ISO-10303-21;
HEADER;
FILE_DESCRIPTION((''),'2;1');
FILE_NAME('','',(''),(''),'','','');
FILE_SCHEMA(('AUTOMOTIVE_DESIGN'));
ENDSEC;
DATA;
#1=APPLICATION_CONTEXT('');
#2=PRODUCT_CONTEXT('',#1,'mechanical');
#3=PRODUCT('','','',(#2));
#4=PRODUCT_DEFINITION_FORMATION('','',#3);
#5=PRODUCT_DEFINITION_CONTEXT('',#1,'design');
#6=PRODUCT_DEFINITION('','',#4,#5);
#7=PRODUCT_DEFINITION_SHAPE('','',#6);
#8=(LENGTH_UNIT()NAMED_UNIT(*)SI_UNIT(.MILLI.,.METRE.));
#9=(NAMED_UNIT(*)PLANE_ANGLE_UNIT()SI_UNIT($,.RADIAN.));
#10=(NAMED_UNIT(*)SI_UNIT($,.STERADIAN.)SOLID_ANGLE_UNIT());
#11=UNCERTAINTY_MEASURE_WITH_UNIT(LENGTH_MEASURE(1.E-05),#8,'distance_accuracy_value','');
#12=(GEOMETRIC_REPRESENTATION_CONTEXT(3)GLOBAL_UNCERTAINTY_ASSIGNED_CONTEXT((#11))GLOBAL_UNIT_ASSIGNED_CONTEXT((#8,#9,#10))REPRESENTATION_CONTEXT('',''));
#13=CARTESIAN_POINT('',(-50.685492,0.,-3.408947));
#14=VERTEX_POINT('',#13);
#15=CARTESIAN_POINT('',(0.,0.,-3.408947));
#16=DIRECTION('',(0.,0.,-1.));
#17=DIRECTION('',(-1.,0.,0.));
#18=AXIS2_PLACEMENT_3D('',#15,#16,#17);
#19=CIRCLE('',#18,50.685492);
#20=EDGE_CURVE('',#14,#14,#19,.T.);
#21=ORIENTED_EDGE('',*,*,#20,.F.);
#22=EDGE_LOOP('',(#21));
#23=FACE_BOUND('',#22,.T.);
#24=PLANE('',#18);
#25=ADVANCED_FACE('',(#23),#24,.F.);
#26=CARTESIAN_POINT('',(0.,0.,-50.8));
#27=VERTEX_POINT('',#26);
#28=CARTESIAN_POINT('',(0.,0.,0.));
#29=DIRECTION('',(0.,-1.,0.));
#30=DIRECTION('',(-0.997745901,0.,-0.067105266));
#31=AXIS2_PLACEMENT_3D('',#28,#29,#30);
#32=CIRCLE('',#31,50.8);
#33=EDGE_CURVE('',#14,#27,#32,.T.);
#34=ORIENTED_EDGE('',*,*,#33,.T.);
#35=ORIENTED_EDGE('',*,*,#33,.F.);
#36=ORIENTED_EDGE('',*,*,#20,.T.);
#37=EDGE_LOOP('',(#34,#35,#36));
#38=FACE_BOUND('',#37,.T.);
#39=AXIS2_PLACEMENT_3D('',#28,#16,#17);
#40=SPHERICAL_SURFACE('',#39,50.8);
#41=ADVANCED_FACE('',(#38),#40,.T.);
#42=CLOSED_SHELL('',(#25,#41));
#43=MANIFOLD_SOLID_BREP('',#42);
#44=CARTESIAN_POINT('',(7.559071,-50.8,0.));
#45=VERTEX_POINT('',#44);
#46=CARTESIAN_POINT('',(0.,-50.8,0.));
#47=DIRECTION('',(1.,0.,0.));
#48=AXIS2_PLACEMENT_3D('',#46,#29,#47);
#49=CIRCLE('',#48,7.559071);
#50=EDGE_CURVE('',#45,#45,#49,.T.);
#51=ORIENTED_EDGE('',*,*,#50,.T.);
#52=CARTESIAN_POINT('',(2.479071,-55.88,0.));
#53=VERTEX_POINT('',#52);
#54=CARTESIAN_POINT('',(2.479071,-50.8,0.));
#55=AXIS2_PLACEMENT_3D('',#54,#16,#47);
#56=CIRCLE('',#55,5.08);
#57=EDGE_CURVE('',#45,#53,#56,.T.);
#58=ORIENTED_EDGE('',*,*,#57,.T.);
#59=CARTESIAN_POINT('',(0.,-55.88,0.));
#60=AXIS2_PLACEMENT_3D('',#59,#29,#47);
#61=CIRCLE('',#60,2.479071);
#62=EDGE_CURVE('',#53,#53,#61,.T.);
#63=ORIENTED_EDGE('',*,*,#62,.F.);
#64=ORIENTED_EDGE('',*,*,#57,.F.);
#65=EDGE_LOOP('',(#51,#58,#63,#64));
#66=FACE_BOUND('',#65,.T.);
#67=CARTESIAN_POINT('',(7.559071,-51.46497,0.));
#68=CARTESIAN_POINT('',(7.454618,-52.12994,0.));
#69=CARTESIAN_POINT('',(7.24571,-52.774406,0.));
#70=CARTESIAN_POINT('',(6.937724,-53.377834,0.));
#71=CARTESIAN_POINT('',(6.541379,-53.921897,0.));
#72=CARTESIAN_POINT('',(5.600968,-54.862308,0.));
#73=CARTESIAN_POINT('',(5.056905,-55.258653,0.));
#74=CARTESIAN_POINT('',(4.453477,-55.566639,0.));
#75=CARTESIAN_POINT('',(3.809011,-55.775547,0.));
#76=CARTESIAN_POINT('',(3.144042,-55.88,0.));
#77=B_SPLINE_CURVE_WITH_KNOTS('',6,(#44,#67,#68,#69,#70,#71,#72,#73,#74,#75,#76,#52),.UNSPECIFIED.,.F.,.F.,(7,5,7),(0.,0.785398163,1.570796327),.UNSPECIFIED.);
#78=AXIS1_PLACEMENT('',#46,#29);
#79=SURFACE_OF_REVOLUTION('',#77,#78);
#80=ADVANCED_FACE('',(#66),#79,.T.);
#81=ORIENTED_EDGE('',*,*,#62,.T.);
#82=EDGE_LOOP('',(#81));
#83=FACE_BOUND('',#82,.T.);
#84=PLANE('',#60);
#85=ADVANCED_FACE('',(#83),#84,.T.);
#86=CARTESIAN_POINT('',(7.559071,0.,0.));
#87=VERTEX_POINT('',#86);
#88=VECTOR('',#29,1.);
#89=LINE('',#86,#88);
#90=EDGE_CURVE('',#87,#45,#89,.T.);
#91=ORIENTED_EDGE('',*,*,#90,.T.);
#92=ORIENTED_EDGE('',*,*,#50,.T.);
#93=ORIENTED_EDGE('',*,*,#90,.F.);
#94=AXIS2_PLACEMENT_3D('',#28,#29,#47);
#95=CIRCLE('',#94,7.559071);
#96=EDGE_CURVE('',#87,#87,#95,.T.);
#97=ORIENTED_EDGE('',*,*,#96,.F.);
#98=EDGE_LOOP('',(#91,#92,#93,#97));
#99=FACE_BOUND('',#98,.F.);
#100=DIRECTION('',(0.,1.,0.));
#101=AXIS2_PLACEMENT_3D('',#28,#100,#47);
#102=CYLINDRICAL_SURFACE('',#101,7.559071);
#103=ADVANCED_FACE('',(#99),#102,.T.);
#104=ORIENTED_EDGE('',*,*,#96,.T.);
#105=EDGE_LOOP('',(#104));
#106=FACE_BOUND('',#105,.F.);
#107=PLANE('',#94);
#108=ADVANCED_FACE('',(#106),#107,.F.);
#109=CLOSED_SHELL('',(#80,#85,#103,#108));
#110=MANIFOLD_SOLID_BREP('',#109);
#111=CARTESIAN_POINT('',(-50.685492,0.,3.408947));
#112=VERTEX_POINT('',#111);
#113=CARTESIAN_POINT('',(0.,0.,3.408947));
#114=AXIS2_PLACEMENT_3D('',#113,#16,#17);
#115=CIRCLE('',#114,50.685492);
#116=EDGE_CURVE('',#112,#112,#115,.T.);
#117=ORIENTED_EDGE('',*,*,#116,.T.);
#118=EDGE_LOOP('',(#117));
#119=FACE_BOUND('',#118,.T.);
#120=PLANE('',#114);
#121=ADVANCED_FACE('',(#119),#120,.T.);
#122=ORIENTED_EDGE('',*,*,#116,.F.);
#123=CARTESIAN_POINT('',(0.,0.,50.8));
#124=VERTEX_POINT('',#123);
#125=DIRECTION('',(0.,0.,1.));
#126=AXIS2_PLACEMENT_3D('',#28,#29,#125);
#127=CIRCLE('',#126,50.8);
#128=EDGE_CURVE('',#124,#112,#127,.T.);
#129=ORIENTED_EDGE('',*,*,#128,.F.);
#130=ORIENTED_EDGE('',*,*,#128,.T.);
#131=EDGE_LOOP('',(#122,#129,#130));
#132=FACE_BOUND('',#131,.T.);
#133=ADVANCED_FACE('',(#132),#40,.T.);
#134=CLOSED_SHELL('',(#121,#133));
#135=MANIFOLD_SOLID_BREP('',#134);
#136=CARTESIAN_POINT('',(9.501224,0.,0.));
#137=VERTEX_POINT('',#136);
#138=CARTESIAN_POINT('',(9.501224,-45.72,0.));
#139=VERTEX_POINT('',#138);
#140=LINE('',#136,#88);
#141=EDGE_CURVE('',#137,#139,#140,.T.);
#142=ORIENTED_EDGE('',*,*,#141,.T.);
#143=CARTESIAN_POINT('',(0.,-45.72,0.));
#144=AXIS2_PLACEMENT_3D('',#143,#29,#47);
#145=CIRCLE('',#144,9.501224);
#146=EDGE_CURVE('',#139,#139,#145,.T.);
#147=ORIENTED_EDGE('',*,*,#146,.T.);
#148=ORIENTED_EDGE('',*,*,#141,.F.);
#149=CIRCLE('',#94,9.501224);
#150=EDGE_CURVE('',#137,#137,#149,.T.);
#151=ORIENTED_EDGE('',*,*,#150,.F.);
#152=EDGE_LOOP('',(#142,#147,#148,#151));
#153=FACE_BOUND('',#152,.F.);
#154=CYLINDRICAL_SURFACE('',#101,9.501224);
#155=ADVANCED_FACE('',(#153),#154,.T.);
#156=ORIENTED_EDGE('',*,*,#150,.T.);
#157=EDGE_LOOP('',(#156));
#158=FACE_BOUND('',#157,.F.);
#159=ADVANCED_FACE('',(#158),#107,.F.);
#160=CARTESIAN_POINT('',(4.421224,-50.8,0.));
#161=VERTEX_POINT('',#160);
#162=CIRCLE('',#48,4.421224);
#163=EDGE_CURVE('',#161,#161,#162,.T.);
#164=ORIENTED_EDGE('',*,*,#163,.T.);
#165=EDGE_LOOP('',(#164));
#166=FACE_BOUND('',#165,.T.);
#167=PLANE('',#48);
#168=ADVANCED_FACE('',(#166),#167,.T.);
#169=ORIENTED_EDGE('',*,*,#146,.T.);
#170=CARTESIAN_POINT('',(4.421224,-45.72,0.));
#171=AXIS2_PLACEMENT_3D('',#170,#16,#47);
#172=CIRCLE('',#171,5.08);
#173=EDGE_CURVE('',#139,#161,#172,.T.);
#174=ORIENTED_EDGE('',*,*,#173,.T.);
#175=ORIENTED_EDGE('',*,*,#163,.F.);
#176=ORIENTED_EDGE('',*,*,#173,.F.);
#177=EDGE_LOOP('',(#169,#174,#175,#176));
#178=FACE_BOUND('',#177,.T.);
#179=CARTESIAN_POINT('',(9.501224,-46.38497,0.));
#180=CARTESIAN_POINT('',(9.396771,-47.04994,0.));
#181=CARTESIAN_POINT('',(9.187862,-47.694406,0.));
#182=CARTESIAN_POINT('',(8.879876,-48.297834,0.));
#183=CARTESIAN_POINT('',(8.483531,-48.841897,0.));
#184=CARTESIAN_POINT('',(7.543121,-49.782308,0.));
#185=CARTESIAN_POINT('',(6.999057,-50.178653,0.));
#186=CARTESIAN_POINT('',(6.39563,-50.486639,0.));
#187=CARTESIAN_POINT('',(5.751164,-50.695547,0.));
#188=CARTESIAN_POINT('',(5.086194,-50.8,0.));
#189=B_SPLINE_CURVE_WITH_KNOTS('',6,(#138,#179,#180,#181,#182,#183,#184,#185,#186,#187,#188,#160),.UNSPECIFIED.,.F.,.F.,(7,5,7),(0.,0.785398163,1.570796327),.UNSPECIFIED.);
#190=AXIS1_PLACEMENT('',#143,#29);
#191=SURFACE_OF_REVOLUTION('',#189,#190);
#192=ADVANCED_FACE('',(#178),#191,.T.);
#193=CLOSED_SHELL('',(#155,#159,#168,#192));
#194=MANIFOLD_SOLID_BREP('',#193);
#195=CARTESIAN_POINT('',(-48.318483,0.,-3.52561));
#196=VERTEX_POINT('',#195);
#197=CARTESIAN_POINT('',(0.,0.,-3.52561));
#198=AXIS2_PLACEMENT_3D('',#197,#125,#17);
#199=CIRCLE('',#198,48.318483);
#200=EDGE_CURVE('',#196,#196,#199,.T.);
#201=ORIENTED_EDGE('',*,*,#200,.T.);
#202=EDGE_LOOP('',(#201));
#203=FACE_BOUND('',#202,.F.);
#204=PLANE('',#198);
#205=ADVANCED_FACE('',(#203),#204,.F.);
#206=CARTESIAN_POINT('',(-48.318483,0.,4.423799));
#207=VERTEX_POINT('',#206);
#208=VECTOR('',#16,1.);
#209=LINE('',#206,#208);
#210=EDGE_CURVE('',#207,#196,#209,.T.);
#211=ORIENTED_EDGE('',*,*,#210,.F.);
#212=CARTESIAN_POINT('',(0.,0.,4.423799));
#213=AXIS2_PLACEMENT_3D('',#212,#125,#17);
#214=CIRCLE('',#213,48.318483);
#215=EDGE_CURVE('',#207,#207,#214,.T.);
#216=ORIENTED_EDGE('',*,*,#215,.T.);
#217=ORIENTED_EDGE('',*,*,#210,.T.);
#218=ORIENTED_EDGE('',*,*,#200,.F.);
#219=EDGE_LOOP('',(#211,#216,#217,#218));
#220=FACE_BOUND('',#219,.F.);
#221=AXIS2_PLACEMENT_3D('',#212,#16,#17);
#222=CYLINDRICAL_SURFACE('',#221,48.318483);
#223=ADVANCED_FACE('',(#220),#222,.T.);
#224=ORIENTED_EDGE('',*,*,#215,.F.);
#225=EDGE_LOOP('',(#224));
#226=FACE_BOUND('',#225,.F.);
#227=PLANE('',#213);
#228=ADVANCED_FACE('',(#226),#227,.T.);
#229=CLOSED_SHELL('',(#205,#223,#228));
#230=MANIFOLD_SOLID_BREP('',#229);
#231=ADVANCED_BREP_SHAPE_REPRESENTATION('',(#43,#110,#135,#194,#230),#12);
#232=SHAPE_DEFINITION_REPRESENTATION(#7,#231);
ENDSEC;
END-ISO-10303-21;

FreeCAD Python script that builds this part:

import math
import FreeCAD as App
import Part
import Sketcher
Q = App.Units.Quantity


def edges_at(feature, points):
    """Names of the edges that pass closest to the given points."""
    edges = feature.Shape.Edges
    near = lambda p: min(range(len(edges)), key=lambda i: edges[i].distToShape(Part.Vertex(*p))[0])
    return sorted({f"Edge{near(p) + 1}" for p in points})

doc = App.newDocument("Part")
params = doc.addObject("Spreadsheet::Sheet", "Params")
for row, (alias, value) in enumerate([
    ("sketch1_radius", "2 in"),
    ("revolution_angle", "360 deg"),
    ("sketch2_radius", "2 in"),
    ("revolution2_angle", "360 deg"),
    ("revolution3_angle", "360 deg"),
    ("pad1_length", "2 in"),
    ("fillet_radius", "0.2 in"),
    ("pad2_length", "2.2 in"),
    ("fillet2_radius", "0.2 in"),
], start=1):
    params.set(f"A{row}", alias)
    params.set(f"B{row}", "=" + value)
    params.setAlias(f"B{row}", alias)

body = doc.addObject("PartDesign::Body", "Body")

# Sketch on XZ plane
sketch1 = doc.addObject("Sketcher::SketchObject", "Sketch")
body.addObject(sketch1)
sketch1.AttachmentSupport = (doc.XZ_Plane, [""])
sketch1.MapMode = "FlatFace"
sketch1.addGeometry([
    Part.LineSegment(App.Vector(0, 3, 0), App.Vector(0, 51, 0)),
    Part.ArcOfCircle(Part.Circle(App.Vector(0, 0, 0), App.Vector(0, 0, 1), 51), math.radians(90), math.radians(176)),
    Part.LineSegment(App.Vector(-51, 3, 0), App.Vector(0, 3, 0)),
], False)
sketch1.addConstraint([
    Sketcher.Constraint("Coincident", 0, 2, 1, 1),
    Sketcher.Constraint("Coincident", 1, 2, 2, 1),
    Sketcher.Constraint("Coincident", 2, 2, 0, 1),
    Sketcher.Constraint("Vertical", 0),
    Sketcher.Constraint("Horizontal", 2),
    Sketcher.Constraint("Coincident", 1, 3, -1, 1),
    Sketcher.Constraint("PointOnObject", 0, 2, -2),
    Sketcher.Constraint("Radius", 1, Q("2 in")),
    Sketcher.Constraint("DistanceX", 2, 1, 2, 2, Q("50.685492 mm")),
])
sketch1.setExpression("Constraints[7]", "Params.sketch1_radius")
revolution = doc.addObject("PartDesign::Revolution", "Revolution")
body.addObject(revolution)
revolution.Profile = sketch1
revolution.ReferenceAxis = (sketch1, ["V_Axis"])
revolution.setExpression("Angle", "Params.revolution_angle")
body2 = doc.addObject("PartDesign::Body", "Body001")

# Sketch on XZ plane
sketch2 = doc.addObject("Sketcher::SketchObject", "Sketch001")
body2.addObject(sketch2)
sketch2.AttachmentSupport = (doc.getObject("XZ_Plane001"), [""])
sketch2.MapMode = "FlatFace"
sketch2.addGeometry([
    Part.ArcOfCircle(Part.Circle(App.Vector(0, 0, 0), App.Vector(0, 0, 1), 51), math.radians(-176), math.radians(-90)),
    Part.LineSegment(App.Vector(0, -51, 0), App.Vector(0, -3, 0)),
    Part.LineSegment(App.Vector(0, -3, 0), App.Vector(-51, -3, 0)),
], False)
sketch2.addConstraint([
    Sketcher.Constraint("Coincident", 0, 2, 1, 1),
    Sketcher.Constraint("Coincident", 1, 2, 2, 1),
    Sketcher.Constraint("Coincident", 2, 2, 0, 1),
    Sketcher.Constraint("Vertical", 1),
    Sketcher.Constraint("Horizontal", 2),
    Sketcher.Constraint("Coincident", 0, 3, -1, 1),
    Sketcher.Constraint("PointOnObject", 0, 2, -2),
    Sketcher.Constraint("Radius", 0, Q("2 in")),
    Sketcher.Constraint("DistanceX", 2, 2, 2, 1, Q("50.685492 mm")),
])
sketch2.setExpression("Constraints[7]", "Params.sketch2_radius")
revolution2 = doc.addObject("PartDesign::Revolution", "Revolution001")
body2.addObject(revolution2)
revolution2.Profile = sketch2
revolution2.ReferenceAxis = (sketch2, ["V_Axis"])
revolution2.setExpression("Angle", "Params.revolution2_angle")
body3 = doc.addObject("PartDesign::Body", "Body002")

# Sketch on XZ plane
sketch3 = doc.addObject("Sketcher::SketchObject", "Sketch002")
body3.addObject(sketch3)
sketch3.AttachmentSupport = (doc.getObject("XZ_Plane002"), [""])
sketch3.MapMode = "FlatFace"
sketch3.addGeometry([
    Part.LineSegment(App.Vector(0, 4, 0), App.Vector(-48, 4, 0)),
    Part.LineSegment(App.Vector(-48, 4, 0), App.Vector(-48, -4, 0)),
    Part.LineSegment(App.Vector(-48, -4, 0), App.Vector(0, -4, 0)),
    Part.LineSegment(App.Vector(0, -4, 0), App.Vector(0, 4, 0)),
], False)
sketch3.addConstraint([
    Sketcher.Constraint("Coincident", 0, 2, 1, 1),
    Sketcher.Constraint("Coincident", 1, 2, 2, 1),
    Sketcher.Constraint("Coincident", 2, 2, 3, 1),
    Sketcher.Constraint("Coincident", 3, 2, 0, 1),
    Sketcher.Constraint("Horizontal", 0),
    Sketcher.Constraint("Vertical", 1),
    Sketcher.Constraint("Horizontal", 2),
    Sketcher.Constraint("Vertical", 3),
    Sketcher.Constraint("PointOnObject", 2, 2, -2),
    Sketcher.Constraint("DistanceY", 1, 2, 1, 1, Q("7.949409 mm")),
    Sketcher.Constraint("DistanceY", -1, 1, 0, 2, Q("4.423799 mm")),
    Sketcher.Constraint("DistanceX", 0, 2, 0, 1, Q("48.318483 mm")),
])
revolution3 = doc.addObject("PartDesign::Revolution", "Revolution002")
body3.addObject(revolution3)
revolution3.Profile = sketch3
revolution3.ReferenceAxis = (sketch3, ["V_Axis"])
revolution3.setExpression("Angle", "Params.revolution3_angle")
body4 = doc.addObject("PartDesign::Body", "Body003")

# Sketch on XZ plane
sketch4 = doc.addObject("Sketcher::SketchObject", "Sketch003")
body4.addObject(sketch4)
sketch4.AttachmentSupport = (doc.getObject("XZ_Plane003"), [""])
sketch4.MapMode = "FlatFace"
sketch4.addGeometry(Part.Circle(App.Vector(0, 0, 0), App.Vector(0, 0, 1), 10), False)
sketch4.addConstraint([
    Sketcher.Constraint("Coincident", 0, 3, -1, 1),
    Sketcher.Constraint("Diameter", 0, Q("19.002448 mm")),
])
pad1 = doc.addObject("PartDesign::Pad", "Pad")
body4.addObject(pad1)
pad1.Profile = sketch4
pad1.setExpression("Length", "Params.pad1_length")
doc.recompute()

fillet = doc.addObject("PartDesign::Fillet", "Fillet")
body4.addObject(fillet)
fillet.Base = (pad1, edges_at(pad1, [(-9.501, -50.8, 0)]))
fillet.setExpression("Radius", "Params.fillet_radius")
body5 = doc.addObject("PartDesign::Body", "Body004")

# Sketch on XZ plane
sketch5 = doc.addObject("Sketcher::SketchObject", "Sketch004")
body5.addObject(sketch5)
sketch5.AttachmentSupport = (doc.getObject("XZ_Plane004"), [""])
sketch5.MapMode = "FlatFace"
sketch5.addGeometry(Part.Circle(App.Vector(0, 0, 0), App.Vector(0, 0, 1), 8), False)
sketch5.addConstraint([
    Sketcher.Constraint("Coincident", 0, 3, -1, 1),
    Sketcher.Constraint("Diameter", 0, Q("15.118142 mm")),
])
pad2 = doc.addObject("PartDesign::Pad", "Pad001")
body5.addObject(pad2)
pad2.Profile = sketch5
pad2.setExpression("Length", "Params.pad2_length")
doc.recompute()

fillet2 = doc.addObject("PartDesign::Fillet", "Fillet001")
body5.addObject(fillet2)
fillet2.Base = (pad2, edges_at(pad2, [(-7.559, -55.88, 0)]))
fillet2.setExpression("Radius", "Params.fillet2_radius")

doc.recompute()
